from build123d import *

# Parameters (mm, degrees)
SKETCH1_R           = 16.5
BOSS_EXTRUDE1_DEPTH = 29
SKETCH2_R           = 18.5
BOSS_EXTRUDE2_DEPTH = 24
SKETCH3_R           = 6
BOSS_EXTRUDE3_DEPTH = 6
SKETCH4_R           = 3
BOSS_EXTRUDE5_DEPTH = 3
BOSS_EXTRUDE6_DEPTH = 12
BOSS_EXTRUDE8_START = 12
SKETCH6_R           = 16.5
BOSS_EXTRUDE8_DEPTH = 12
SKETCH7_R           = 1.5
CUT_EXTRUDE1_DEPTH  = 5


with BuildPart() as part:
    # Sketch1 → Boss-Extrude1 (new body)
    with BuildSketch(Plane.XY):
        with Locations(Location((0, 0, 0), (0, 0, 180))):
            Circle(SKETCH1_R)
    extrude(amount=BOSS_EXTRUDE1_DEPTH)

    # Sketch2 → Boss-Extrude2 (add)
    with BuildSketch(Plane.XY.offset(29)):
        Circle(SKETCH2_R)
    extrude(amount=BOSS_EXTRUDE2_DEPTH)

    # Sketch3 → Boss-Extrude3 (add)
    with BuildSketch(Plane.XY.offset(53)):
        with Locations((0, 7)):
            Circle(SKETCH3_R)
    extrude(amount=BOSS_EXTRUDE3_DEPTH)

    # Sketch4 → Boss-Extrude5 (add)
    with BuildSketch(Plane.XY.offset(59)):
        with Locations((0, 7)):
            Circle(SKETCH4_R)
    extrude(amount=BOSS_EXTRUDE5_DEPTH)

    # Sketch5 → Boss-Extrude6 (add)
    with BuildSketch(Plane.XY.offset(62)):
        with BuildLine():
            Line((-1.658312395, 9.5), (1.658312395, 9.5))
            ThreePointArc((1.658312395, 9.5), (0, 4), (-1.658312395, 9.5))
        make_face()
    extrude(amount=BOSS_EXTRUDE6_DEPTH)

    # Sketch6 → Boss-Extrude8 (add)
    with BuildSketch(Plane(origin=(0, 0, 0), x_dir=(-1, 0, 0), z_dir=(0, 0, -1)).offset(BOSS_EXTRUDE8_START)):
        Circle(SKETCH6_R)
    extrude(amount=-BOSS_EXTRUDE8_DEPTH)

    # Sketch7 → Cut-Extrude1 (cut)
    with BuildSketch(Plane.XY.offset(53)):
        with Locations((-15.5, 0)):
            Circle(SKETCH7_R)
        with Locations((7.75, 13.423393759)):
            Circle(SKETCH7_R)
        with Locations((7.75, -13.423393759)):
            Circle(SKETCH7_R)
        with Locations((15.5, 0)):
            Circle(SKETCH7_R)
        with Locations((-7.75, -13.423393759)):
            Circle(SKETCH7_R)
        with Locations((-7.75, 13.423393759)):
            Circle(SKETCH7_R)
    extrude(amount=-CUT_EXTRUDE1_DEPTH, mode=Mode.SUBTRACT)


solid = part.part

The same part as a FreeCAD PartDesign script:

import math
import FreeCAD as App
import Part
import Sketcher

doc = App.newDocument("Part")
params = doc.addObject("Spreadsheet::Sheet", "Params")
for row, (alias, value) in enumerate([
    ("sketch1_diameter", "33 mm"),
    ("pad1_length", "29 mm"),
    ("sketch2_diameter", "37 mm"),
    ("pad2_length", "24 mm"),
    ("sketch3_diameter", "12 mm"),
    ("pad3_length", "6 mm"),
    ("sketch4_diameter", "6 mm"),
    ("pad4_length", "3 mm"),
    ("sketch5_radius", "3 mm"),
    ("pad5_length", "12 mm"),
    ("sketch6_diameter", "33 mm"),
    ("pad6_length", "12 mm"),
    ("sketch7_diameter", "3 mm"),
    ("pocket1_length", "5 mm"),
], start=1):
    params.set(f"A{row}", alias)
    params.set(f"B{row}", "=" + value)
    params.setAlias(f"B{row}", alias)

body = doc.addObject("PartDesign::Body", "Body")

# Sketch on XY plane
sketch1 = body.newObject("Sketcher::SketchObject", "Sketch")
sketch1.AttachmentSupport = (doc.getObject("XY_Plane"), [""])
sketch1.MapMode = "FlatFace"
sketch1.addGeometry(Part.Circle(App.Vector(0, 0, 0), App.Vector(0, 0, 1), 16), False)
sketch1.addConstraint([
    Sketcher.Constraint("Coincident", 0, 3, -1, 1),
    Sketcher.Constraint("Diameter", 0, 33.0),
])
sketch1.setExpression("Constraints[1]", "Params.sketch1_diameter")
pad1 = body.newObject("PartDesign::Pad", "Pad")
pad1.Profile = sketch1
pad1.setExpression("Length", "Params.pad1_length")

# Sketch on XY plane
sketch2 = body.newObject("Sketcher::SketchObject", "Sketch001")
sketch2.AttachmentSupport = (doc.getObject("XY_Plane"), [""])
sketch2.MapMode = "FlatFace"
sketch2.AttachmentOffset = App.Placement(App.Vector(0, 0, 29), App.Rotation())
sketch2.addGeometry(Part.Circle(App.Vector(0, 0, 0), App.Vector(0, 0, 1), 18), False)
sketch2.addConstraint([
    Sketcher.Constraint("Coincident", 0, 3, -1, 1),
    Sketcher.Constraint("Diameter", 0, 37.0),
])
sketch2.setExpression("Constraints[1]", "Params.sketch2_diameter")
pad2 = body.newObject("PartDesign::Pad", "Pad001")
pad2.Profile = sketch2
pad2.setExpression("Length", "Params.pad2_length")

# Sketch on XY plane
sketch3 = body.newObject("Sketcher::SketchObject", "Sketch002")
sketch3.AttachmentSupport = (doc.getObject("XY_Plane"), [""])
sketch3.MapMode = "FlatFace"
sketch3.AttachmentOffset = App.Placement(App.Vector(0, 0, 53), App.Rotation())
sketch3.addGeometry(Part.Circle(App.Vector(0, 7, 0), App.Vector(0, 0, 1), 6), False)
sketch3.addConstraint([
    Sketcher.Constraint("PointOnObject", 0, 3, -2),
    Sketcher.Constraint("Diameter", 0, 12.0),
    Sketcher.Constraint("DistanceY", -1, 1, 0, 3, 7.0),
])
sketch3.setExpression("Constraints[1]", "Params.sketch3_diameter")
pad3 = body.newObject("PartDesign::Pad", "Pad002")
pad3.Profile = sketch3
pad3.setExpression("Length", "Params.pad3_length")

# Sketch on XY plane
sketch4 = body.newObject("Sketcher::SketchObject", "Sketch003")
sketch4.AttachmentSupport = (doc.getObject("XY_Plane"), [""])
sketch4.MapMode = "FlatFace"
sketch4.AttachmentOffset = App.Placement(App.Vector(0, 0, 59), App.Rotation())
sketch4.addGeometry(Part.Circle(App.Vector(0, 7, 0), App.Vector(0, 0, 1), 3), False)
sketch4.addConstraint([
    Sketcher.Constraint("PointOnObject", 0, 3, -2),
    Sketcher.Constraint("Diameter", 0, 6.0),
    Sketcher.Constraint("DistanceY", -1, 1, 0, 3, 7.0),
])
sketch4.setExpression("Constraints[1]", "Params.sketch4_diameter")
pad4 = body.newObject("PartDesign::Pad", "Pad003")
pad4.Profile = sketch4
pad4.setExpression("Length", "Params.pad4_length")

# Sketch on XY plane
sketch5 = body.newObject("Sketcher::SketchObject", "Sketch004")
sketch5.AttachmentSupport = (doc.getObject("XY_Plane"), [""])
sketch5.MapMode = "FlatFace"
sketch5.AttachmentOffset = App.Placement(App.Vector(0, 0, 62), App.Rotation())
sketch5.addGeometry([
    Part.LineSegment(App.Vector(1.7, 9.5, 0), App.Vector(-1.7, 9.5, 0)),
    Part.ArcOfCircle(Part.Circle(App.Vector(0, 7, 0), App.Vector(0, 0, 1), 3), math.radians(124), math.radians(416)),
], False)
sketch5.addConstraint([
    Sketcher.Constraint("Coincident", 0, 1, 1, 2),
    Sketcher.Constraint("Coincident", 1, 1, 0, 2),
    Sketcher.Constraint("Horizontal", 0),
    Sketcher.Constraint("PointOnObject", 1, 3, -2),
    Sketcher.Constraint("Radius", 1, 3.0),
    Sketcher.Constraint("DistanceY", -1, 1, 1, 3, 7.0),
    Sketcher.Constraint("DistanceY", -1, 1, 0, 1, 9.5),
])
sketch5.setExpression("Constraints[4]", "Params.sketch5_radius")
pad5 = body.newObject("PartDesign::Pad", "Pad004")
pad5.Profile = sketch5
pad5.setExpression("Length", "Params.pad5_length")

# Sketch on XY plane
sketch6 = body.newObject("Sketcher::SketchObject", "Sketch005")
sketch6.AttachmentSupport = (doc.getObject("XY_Plane"), [""])
sketch6.MapMode = "FlatFace"
sketch6.AttachmentOffset = App.Placement(App.Vector(0, 0, -12), App.Rotation())
sketch6.addGeometry(Part.Circle(App.Vector(0, 0, 0), App.Vector(0, 0, 1), 16), False)
sketch6.addConstraint([
    Sketcher.Constraint("Coincident", 0, 3, -1, 1),
    Sketcher.Constraint("Diameter", 0, 33.0),
])
sketch6.setExpression("Constraints[1]", "Params.sketch6_diameter")
pad6 = body.newObject("PartDesign::Pad", "Pad005")
pad6.Profile = sketch6
pad6.setExpression("Length", "Params.pad6_length")

# Sketch on XY plane
sketch7 = body.newObject("Sketcher::SketchObject", "Sketch006")
sketch7.AttachmentSupport = (doc.getObject("XY_Plane"), [""])
sketch7.MapMode = "FlatFace"
sketch7.AttachmentOffset = App.Placement(App.Vector(0, 0, 53), App.Rotation())
sketch7.addGeometry([
    Part.Circle(App.Vector(-15.5, 0, 0), App.Vector(0, 0, 1), 1.5),  # 0
    Part.Circle(App.Vector(7.8, 13.4, 0), App.Vector(0, 0, 1), 1.5),  # 1
    Part.Circle(App.Vector(7.8, -13.4, 0), App.Vector(0, 0, 1), 1.5),  # 2
    Part.Circle(App.Vector(15.5, 0, 0), App.Vector(0, 0, 1), 1.5),  # 3
    Part.Circle(App.Vector(-7.8, -13.4, 0), App.Vector(0, 0, 1), 1.5),  # 4
    Part.Circle(App.Vector(-7.8, 13.4, 0), App.Vector(0, 0, 1), 1.5),  # 5
], False)
sketch7.addConstraint([
    Sketcher.Constraint("Equal", 0, 1),
    Sketcher.Constraint("Equal", 1, 2),
    Sketcher.Constraint("Equal", 2, 3),
    Sketcher.Constraint("Equal", 3, 4),
    Sketcher.Constraint("Equal", 4, 5),
    Sketcher.Constraint("Symmetric", 0, 3, 3, 3, -1, 1),
    Sketcher.Constraint("Symmetric", 1, 3, 4, 3, -1, 1),
    Sketcher.Constraint("Symmetric", 2, 3, 5, 3, -1, 1),
    Sketcher.Constraint("Symmetric", 2, 3, 4, 3, -2),
    Sketcher.Constraint("PointOnObject", 0, 3, -1),
    Sketcher.Constraint("Diameter", 0, 3.0),
    Sketcher.Constraint("DistanceX", 0, 3, 3, 3, 31.0),
    Sketcher.Constraint("DistanceX", 4, 3, 2, 3, 15.5),
    Sketcher.Constraint("DistanceY", -1, 1, 1, 3, 13.423394),
])
sketch7.setExpression("Constraints[10]", "Params.sketch7_diameter")
pocket1 = body.newObject("PartDesign::Pocket", "Pocket")
pocket1.Profile = sketch7
pocket1.setExpression("Length", "Params.pocket1_length")

doc.recompute()
